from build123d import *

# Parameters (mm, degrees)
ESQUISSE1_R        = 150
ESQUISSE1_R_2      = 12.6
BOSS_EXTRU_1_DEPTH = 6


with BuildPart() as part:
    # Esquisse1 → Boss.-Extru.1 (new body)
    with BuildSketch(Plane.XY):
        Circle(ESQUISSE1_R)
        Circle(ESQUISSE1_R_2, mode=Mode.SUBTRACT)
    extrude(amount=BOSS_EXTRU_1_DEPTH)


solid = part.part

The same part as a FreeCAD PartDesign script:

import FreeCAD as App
import Part
import Sketcher

V = App.Vector
Q = App.Units.Quantity

doc = App.newDocument("Part")
params = doc.addObject("Spreadsheet::Sheet", "Params")
for row, (alias, value) in enumerate([
    ("sketch1_diameter", "300 mm"),
    ("sketch1_diameter2", "25.2 mm"),
    ("pad1_length", "6 mm"),
], start=1):
    params.set(f"A{row}", alias)
    params.set(f"B{row}", "=" + value)
    params.setAlias(f"B{row}", alias)

body = doc.addObject("PartDesign::Body", "Body")

# Sketch on XY plane
sketch1 = body.newObject("Sketcher::SketchObject", "Sketch")
sketch1.AttachmentSupport = (doc.getObject("XY_Plane"), [""])
sketch1.MapMode = "FlatFace"
sketch1.addGeometry([
    Part.Circle(V(0, 0, 0), V(0, 0, 1), 150),
    Part.Circle(V(0, 0, 0), V(0, 0, 1), 13),
], False)
sketch1.addConstraint([
    Sketcher.Constraint("Coincident", 0, 3, -1, 1),
    Sketcher.Constraint("Coincident", 1, 3, -1, 1),
    Sketcher.Constraint("Diameter", 0, Q("300 mm")),
    Sketcher.Constraint("Diameter", 1, Q("25.2 mm")),
])
sketch1.setExpression("Constraints[2]", "Params.sketch1_diameter")
sketch1.setExpression("Constraints[3]", "Params.sketch1_diameter2")
pad1 = body.newObject("PartDesign::Pad", "Pad")
pad1.Profile = sketch1
pad1.setExpression("Length", "Params.pad1_length")

doc.recompute()
